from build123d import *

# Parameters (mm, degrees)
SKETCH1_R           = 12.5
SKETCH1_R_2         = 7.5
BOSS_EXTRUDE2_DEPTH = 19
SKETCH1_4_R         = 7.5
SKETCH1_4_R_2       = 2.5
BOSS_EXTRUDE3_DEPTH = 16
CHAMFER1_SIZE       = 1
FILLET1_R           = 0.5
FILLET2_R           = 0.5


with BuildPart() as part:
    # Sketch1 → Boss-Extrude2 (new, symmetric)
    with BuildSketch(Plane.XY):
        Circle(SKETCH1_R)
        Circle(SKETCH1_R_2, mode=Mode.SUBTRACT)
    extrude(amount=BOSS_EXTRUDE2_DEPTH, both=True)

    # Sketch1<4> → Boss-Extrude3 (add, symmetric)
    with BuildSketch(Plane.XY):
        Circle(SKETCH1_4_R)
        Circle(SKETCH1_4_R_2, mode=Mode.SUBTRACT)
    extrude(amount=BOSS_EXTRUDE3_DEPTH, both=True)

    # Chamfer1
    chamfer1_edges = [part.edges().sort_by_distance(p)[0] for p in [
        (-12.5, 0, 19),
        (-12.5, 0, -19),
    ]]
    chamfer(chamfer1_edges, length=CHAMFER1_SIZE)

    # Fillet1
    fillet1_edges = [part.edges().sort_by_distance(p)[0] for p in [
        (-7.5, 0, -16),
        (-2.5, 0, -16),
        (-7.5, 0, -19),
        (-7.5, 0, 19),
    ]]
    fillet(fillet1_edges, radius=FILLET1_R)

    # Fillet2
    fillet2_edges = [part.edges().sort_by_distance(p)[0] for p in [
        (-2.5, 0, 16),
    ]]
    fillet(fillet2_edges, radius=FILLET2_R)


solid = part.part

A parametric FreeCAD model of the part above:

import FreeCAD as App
import Part
import Sketcher
from FreeCAD import Vector


def edges_at(feature, points):
    """Names of the edges that pass closest to the given points."""
    edges = feature.Shape.Edges
    near = lambda p: min(range(len(edges)), key=lambda i: edges[i].distToShape(Part.Vertex(*p))[0])
    return sorted({f"Edge{near(p) + 1}" for p in points})

doc = App.newDocument("Part")
body = doc.addObject("PartDesign::Body", "Body")

# Sketch on XY plane
sketch1 = body.newObject("Sketcher::SketchObject", "Sketch")
sketch1.AttachmentSupport = (doc.getObject("XY_Plane"), [""])
sketch1.MapMode = "FlatFace"
sketch1.addGeometry([
    Part.Circle(Vector(0, 0, 0), Vector(0, 0, 1), 12.5),
    Part.Circle(Vector(0, 0, 0), Vector(0, 0, 1), 7.5),
], False)
sketch1.addConstraint([
    Sketcher.Constraint("Coincident", 0, 3, -1, 1),
    Sketcher.Constraint("Coincident", 1, 3, -1, 1),
    Sketcher.Constraint("Diameter", 0, 25.0),
    Sketcher.Constraint("Diameter", 1, 15.0),
])
pad1 = body.newObject("PartDesign::Pad", "Pad")
pad1.Profile = sketch1
pad1.Length = 38
pad1.Midplane = True

# Sketch on XY plane
sketch2 = body.newObject("Sketcher::SketchObject", "Sketch001")
sketch2.AttachmentSupport = (doc.getObject("XY_Plane"), [""])
sketch2.MapMode = "FlatFace"
sketch2.addGeometry([
    Part.Circle(Vector(0, 0, 0), Vector(0, 0, 1), 7.5),
    Part.Circle(Vector(0, 0, 0), Vector(0, 0, 1), 2.5),
], False)
sketch2.addConstraint([
    Sketcher.Constraint("Coincident", 0, 3, -1, 1),
    Sketcher.Constraint("Coincident", 1, 3, -1, 1),
    Sketcher.Constraint("Diameter", 0, 15.0),
    Sketcher.Constraint("Diameter", 1, 5.0),
])
pad2 = body.newObject("PartDesign::Pad", "Pad001")
pad2.Profile = sketch2
pad2.Length = 32
pad2.Midplane = True
doc.recompute()

chamfer = body.newObject("PartDesign::Chamfer", "Chamfer")
chamfer.Base = (pad2, edges_at(pad2, [(-12.5, 0, 19), (-12.5, 0, -19)]))
chamfer.Size = 1
doc.recompute()

fillet = body.newObject("PartDesign::Fillet", "Fillet")
fillet.Base = (chamfer, edges_at(chamfer, [
    (-7.5, 0, -16),
    (-2.5, 0, -16),
    (-7.5, 0, -19),
    (-7.5, 0, 19),
]))
fillet.Radius = 0.5
doc.recompute()

fillet2 = body.newObject("PartDesign::Fillet", "Fillet001")
fillet2.Base = (fillet, edges_at(fillet, [(-2.5, 0, 16)]))
fillet2.Radius = 0.5

doc.recompute()
